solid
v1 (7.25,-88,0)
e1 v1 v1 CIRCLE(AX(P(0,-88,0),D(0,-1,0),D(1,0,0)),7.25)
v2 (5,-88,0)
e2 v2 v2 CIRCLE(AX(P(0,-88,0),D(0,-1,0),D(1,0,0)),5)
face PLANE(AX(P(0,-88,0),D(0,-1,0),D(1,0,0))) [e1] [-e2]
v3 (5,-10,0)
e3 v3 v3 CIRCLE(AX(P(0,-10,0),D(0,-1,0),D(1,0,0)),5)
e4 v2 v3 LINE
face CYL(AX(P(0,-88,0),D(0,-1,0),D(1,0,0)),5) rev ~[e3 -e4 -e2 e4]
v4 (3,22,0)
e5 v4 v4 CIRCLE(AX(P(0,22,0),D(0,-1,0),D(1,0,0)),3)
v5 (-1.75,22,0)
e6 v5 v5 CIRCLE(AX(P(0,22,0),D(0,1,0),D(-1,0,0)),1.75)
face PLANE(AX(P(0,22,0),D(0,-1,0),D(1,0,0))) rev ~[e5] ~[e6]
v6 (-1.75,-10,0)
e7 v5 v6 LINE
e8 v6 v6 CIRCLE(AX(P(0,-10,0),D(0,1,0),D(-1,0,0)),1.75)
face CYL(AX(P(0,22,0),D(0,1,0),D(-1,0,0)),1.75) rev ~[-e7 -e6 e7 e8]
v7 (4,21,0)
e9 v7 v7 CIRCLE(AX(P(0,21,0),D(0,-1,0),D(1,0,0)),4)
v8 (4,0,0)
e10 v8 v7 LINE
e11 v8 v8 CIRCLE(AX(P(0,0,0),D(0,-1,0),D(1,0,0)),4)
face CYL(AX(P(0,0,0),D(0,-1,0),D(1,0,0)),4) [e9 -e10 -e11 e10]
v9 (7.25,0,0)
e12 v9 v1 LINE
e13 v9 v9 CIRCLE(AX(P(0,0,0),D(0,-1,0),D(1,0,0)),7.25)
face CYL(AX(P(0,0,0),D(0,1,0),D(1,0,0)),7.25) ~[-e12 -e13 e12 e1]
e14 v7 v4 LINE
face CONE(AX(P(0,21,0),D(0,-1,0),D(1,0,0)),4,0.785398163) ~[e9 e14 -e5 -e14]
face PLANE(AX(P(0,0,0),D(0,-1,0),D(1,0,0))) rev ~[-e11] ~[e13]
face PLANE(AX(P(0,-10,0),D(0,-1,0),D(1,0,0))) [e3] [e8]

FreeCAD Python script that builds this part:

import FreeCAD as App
import Part
import Sketcher
Q = App.Units.Quantity


def edges_at(feature, points):
    """Names of the edges that pass closest to the given points."""
    edges = feature.Shape.Edges
    near = lambda p: min(range(len(edges)), key=lambda i: edges[i].distToShape(Part.Vertex(*p))[0])
    return sorted({f"Edge{near(p) + 1}" for p in points})

doc = App.newDocument("Part")
body = doc.addObject("PartDesign::Body", "Body")

sketch1 = body.newObject("Sketcher::SketchObject", "Sketch")
sketch1.AttachmentSupport = (doc.getObject("XZ_Plane"), [""])
sketch1.MapMode = "FlatFace"
sketch1.addGeometry(Part.Circle(App.Vector(0, 0, 0), App.Vector(0, 0, 1), 7), False)
sketch1.addConstraint([
    Sketcher.Constraint("Coincident", 0, 3, -1, 1),
    Sketcher.Constraint("Diameter", 0, Q("14.5 mm")),
])
pad1 = body.newObject("PartDesign::Pad", "Pad")
pad1.Profile = sketch1
pad1.Length = 88

sketch2 = body.newObject("Sketcher::SketchObject", "Sketch001")
sketch2.AttachmentSupport = (doc.getObject("XZ_Plane"), [""])
sketch2.MapMode = "FlatFace"
sketch2.addGeometry(Part.Circle(App.Vector(0, 0, 0), App.Vector(0, 0, 1), 4), False)
sketch2.addConstraint([
    Sketcher.Constraint("Coincident", 0, 3, -1, 1),
    Sketcher.Constraint("Diameter", 0, Q("8 mm")),
])
pad2 = body.newObject("PartDesign::Pad", "Pad001")
pad2.Profile = sketch2
pad2.Length = 22
pad2.Reversed = True
doc.recompute()

chamfer = body.newObject("PartDesign::Chamfer", "Chamfer")
chamfer.Base = (pad2, edges_at(pad2, [(-4, 22, 0)]))
chamfer.Size = 1

sketch3 = body.newObject("Sketcher::SketchObject", "Sketch002")
sketch3.AttachmentSupport = (doc.getObject("XZ_Plane"), [""])
sketch3.MapMode = "FlatFace"
sketch3.AttachmentOffset = App.Placement(App.Vector(0, 0, -22), App.Rotation())
sketch3.addGeometry(Part.Circle(App.Vector(0, 0, 0), App.Vector(0, 0, 1), 1.8), False)
sketch3.addConstraint([
    Sketcher.Constraint("Coincident", 0, 3, -1, 1),
    Sketcher.Constraint("Diameter", 0, Q("3.5 mm")),
])
pocket1 = body.newObject("PartDesign::Pocket", "Pocket")
pocket1.Profile = sketch3
pocket1.Length = 120
pocket1.Reversed = True

sketch4 = body.newObject("Sketcher::SketchObject", "Sketch003")
sketch4.AttachmentSupport = (doc.getObject("XZ_Plane"), [""])
sketch4.MapMode = "FlatFace"
sketch4.AttachmentOffset = App.Placement(App.Vector(0, 0, 88), App.Rotation())
sketch4.addGeometry(Part.Circle(App.Vector(0, 0, 0), App.Vector(0, 0, 1), 5), False)
sketch4.addConstraint([
    Sketcher.Constraint("Coincident", 0, 3, -1, 1),
    Sketcher.Constraint("Diameter", 0, Q("10 mm")),
])
pocket2 = body.newObject("PartDesign::Pocket", "Pocket001")
pocket2.Profile = sketch4
pocket2.Length = 78

doc.recompute()
